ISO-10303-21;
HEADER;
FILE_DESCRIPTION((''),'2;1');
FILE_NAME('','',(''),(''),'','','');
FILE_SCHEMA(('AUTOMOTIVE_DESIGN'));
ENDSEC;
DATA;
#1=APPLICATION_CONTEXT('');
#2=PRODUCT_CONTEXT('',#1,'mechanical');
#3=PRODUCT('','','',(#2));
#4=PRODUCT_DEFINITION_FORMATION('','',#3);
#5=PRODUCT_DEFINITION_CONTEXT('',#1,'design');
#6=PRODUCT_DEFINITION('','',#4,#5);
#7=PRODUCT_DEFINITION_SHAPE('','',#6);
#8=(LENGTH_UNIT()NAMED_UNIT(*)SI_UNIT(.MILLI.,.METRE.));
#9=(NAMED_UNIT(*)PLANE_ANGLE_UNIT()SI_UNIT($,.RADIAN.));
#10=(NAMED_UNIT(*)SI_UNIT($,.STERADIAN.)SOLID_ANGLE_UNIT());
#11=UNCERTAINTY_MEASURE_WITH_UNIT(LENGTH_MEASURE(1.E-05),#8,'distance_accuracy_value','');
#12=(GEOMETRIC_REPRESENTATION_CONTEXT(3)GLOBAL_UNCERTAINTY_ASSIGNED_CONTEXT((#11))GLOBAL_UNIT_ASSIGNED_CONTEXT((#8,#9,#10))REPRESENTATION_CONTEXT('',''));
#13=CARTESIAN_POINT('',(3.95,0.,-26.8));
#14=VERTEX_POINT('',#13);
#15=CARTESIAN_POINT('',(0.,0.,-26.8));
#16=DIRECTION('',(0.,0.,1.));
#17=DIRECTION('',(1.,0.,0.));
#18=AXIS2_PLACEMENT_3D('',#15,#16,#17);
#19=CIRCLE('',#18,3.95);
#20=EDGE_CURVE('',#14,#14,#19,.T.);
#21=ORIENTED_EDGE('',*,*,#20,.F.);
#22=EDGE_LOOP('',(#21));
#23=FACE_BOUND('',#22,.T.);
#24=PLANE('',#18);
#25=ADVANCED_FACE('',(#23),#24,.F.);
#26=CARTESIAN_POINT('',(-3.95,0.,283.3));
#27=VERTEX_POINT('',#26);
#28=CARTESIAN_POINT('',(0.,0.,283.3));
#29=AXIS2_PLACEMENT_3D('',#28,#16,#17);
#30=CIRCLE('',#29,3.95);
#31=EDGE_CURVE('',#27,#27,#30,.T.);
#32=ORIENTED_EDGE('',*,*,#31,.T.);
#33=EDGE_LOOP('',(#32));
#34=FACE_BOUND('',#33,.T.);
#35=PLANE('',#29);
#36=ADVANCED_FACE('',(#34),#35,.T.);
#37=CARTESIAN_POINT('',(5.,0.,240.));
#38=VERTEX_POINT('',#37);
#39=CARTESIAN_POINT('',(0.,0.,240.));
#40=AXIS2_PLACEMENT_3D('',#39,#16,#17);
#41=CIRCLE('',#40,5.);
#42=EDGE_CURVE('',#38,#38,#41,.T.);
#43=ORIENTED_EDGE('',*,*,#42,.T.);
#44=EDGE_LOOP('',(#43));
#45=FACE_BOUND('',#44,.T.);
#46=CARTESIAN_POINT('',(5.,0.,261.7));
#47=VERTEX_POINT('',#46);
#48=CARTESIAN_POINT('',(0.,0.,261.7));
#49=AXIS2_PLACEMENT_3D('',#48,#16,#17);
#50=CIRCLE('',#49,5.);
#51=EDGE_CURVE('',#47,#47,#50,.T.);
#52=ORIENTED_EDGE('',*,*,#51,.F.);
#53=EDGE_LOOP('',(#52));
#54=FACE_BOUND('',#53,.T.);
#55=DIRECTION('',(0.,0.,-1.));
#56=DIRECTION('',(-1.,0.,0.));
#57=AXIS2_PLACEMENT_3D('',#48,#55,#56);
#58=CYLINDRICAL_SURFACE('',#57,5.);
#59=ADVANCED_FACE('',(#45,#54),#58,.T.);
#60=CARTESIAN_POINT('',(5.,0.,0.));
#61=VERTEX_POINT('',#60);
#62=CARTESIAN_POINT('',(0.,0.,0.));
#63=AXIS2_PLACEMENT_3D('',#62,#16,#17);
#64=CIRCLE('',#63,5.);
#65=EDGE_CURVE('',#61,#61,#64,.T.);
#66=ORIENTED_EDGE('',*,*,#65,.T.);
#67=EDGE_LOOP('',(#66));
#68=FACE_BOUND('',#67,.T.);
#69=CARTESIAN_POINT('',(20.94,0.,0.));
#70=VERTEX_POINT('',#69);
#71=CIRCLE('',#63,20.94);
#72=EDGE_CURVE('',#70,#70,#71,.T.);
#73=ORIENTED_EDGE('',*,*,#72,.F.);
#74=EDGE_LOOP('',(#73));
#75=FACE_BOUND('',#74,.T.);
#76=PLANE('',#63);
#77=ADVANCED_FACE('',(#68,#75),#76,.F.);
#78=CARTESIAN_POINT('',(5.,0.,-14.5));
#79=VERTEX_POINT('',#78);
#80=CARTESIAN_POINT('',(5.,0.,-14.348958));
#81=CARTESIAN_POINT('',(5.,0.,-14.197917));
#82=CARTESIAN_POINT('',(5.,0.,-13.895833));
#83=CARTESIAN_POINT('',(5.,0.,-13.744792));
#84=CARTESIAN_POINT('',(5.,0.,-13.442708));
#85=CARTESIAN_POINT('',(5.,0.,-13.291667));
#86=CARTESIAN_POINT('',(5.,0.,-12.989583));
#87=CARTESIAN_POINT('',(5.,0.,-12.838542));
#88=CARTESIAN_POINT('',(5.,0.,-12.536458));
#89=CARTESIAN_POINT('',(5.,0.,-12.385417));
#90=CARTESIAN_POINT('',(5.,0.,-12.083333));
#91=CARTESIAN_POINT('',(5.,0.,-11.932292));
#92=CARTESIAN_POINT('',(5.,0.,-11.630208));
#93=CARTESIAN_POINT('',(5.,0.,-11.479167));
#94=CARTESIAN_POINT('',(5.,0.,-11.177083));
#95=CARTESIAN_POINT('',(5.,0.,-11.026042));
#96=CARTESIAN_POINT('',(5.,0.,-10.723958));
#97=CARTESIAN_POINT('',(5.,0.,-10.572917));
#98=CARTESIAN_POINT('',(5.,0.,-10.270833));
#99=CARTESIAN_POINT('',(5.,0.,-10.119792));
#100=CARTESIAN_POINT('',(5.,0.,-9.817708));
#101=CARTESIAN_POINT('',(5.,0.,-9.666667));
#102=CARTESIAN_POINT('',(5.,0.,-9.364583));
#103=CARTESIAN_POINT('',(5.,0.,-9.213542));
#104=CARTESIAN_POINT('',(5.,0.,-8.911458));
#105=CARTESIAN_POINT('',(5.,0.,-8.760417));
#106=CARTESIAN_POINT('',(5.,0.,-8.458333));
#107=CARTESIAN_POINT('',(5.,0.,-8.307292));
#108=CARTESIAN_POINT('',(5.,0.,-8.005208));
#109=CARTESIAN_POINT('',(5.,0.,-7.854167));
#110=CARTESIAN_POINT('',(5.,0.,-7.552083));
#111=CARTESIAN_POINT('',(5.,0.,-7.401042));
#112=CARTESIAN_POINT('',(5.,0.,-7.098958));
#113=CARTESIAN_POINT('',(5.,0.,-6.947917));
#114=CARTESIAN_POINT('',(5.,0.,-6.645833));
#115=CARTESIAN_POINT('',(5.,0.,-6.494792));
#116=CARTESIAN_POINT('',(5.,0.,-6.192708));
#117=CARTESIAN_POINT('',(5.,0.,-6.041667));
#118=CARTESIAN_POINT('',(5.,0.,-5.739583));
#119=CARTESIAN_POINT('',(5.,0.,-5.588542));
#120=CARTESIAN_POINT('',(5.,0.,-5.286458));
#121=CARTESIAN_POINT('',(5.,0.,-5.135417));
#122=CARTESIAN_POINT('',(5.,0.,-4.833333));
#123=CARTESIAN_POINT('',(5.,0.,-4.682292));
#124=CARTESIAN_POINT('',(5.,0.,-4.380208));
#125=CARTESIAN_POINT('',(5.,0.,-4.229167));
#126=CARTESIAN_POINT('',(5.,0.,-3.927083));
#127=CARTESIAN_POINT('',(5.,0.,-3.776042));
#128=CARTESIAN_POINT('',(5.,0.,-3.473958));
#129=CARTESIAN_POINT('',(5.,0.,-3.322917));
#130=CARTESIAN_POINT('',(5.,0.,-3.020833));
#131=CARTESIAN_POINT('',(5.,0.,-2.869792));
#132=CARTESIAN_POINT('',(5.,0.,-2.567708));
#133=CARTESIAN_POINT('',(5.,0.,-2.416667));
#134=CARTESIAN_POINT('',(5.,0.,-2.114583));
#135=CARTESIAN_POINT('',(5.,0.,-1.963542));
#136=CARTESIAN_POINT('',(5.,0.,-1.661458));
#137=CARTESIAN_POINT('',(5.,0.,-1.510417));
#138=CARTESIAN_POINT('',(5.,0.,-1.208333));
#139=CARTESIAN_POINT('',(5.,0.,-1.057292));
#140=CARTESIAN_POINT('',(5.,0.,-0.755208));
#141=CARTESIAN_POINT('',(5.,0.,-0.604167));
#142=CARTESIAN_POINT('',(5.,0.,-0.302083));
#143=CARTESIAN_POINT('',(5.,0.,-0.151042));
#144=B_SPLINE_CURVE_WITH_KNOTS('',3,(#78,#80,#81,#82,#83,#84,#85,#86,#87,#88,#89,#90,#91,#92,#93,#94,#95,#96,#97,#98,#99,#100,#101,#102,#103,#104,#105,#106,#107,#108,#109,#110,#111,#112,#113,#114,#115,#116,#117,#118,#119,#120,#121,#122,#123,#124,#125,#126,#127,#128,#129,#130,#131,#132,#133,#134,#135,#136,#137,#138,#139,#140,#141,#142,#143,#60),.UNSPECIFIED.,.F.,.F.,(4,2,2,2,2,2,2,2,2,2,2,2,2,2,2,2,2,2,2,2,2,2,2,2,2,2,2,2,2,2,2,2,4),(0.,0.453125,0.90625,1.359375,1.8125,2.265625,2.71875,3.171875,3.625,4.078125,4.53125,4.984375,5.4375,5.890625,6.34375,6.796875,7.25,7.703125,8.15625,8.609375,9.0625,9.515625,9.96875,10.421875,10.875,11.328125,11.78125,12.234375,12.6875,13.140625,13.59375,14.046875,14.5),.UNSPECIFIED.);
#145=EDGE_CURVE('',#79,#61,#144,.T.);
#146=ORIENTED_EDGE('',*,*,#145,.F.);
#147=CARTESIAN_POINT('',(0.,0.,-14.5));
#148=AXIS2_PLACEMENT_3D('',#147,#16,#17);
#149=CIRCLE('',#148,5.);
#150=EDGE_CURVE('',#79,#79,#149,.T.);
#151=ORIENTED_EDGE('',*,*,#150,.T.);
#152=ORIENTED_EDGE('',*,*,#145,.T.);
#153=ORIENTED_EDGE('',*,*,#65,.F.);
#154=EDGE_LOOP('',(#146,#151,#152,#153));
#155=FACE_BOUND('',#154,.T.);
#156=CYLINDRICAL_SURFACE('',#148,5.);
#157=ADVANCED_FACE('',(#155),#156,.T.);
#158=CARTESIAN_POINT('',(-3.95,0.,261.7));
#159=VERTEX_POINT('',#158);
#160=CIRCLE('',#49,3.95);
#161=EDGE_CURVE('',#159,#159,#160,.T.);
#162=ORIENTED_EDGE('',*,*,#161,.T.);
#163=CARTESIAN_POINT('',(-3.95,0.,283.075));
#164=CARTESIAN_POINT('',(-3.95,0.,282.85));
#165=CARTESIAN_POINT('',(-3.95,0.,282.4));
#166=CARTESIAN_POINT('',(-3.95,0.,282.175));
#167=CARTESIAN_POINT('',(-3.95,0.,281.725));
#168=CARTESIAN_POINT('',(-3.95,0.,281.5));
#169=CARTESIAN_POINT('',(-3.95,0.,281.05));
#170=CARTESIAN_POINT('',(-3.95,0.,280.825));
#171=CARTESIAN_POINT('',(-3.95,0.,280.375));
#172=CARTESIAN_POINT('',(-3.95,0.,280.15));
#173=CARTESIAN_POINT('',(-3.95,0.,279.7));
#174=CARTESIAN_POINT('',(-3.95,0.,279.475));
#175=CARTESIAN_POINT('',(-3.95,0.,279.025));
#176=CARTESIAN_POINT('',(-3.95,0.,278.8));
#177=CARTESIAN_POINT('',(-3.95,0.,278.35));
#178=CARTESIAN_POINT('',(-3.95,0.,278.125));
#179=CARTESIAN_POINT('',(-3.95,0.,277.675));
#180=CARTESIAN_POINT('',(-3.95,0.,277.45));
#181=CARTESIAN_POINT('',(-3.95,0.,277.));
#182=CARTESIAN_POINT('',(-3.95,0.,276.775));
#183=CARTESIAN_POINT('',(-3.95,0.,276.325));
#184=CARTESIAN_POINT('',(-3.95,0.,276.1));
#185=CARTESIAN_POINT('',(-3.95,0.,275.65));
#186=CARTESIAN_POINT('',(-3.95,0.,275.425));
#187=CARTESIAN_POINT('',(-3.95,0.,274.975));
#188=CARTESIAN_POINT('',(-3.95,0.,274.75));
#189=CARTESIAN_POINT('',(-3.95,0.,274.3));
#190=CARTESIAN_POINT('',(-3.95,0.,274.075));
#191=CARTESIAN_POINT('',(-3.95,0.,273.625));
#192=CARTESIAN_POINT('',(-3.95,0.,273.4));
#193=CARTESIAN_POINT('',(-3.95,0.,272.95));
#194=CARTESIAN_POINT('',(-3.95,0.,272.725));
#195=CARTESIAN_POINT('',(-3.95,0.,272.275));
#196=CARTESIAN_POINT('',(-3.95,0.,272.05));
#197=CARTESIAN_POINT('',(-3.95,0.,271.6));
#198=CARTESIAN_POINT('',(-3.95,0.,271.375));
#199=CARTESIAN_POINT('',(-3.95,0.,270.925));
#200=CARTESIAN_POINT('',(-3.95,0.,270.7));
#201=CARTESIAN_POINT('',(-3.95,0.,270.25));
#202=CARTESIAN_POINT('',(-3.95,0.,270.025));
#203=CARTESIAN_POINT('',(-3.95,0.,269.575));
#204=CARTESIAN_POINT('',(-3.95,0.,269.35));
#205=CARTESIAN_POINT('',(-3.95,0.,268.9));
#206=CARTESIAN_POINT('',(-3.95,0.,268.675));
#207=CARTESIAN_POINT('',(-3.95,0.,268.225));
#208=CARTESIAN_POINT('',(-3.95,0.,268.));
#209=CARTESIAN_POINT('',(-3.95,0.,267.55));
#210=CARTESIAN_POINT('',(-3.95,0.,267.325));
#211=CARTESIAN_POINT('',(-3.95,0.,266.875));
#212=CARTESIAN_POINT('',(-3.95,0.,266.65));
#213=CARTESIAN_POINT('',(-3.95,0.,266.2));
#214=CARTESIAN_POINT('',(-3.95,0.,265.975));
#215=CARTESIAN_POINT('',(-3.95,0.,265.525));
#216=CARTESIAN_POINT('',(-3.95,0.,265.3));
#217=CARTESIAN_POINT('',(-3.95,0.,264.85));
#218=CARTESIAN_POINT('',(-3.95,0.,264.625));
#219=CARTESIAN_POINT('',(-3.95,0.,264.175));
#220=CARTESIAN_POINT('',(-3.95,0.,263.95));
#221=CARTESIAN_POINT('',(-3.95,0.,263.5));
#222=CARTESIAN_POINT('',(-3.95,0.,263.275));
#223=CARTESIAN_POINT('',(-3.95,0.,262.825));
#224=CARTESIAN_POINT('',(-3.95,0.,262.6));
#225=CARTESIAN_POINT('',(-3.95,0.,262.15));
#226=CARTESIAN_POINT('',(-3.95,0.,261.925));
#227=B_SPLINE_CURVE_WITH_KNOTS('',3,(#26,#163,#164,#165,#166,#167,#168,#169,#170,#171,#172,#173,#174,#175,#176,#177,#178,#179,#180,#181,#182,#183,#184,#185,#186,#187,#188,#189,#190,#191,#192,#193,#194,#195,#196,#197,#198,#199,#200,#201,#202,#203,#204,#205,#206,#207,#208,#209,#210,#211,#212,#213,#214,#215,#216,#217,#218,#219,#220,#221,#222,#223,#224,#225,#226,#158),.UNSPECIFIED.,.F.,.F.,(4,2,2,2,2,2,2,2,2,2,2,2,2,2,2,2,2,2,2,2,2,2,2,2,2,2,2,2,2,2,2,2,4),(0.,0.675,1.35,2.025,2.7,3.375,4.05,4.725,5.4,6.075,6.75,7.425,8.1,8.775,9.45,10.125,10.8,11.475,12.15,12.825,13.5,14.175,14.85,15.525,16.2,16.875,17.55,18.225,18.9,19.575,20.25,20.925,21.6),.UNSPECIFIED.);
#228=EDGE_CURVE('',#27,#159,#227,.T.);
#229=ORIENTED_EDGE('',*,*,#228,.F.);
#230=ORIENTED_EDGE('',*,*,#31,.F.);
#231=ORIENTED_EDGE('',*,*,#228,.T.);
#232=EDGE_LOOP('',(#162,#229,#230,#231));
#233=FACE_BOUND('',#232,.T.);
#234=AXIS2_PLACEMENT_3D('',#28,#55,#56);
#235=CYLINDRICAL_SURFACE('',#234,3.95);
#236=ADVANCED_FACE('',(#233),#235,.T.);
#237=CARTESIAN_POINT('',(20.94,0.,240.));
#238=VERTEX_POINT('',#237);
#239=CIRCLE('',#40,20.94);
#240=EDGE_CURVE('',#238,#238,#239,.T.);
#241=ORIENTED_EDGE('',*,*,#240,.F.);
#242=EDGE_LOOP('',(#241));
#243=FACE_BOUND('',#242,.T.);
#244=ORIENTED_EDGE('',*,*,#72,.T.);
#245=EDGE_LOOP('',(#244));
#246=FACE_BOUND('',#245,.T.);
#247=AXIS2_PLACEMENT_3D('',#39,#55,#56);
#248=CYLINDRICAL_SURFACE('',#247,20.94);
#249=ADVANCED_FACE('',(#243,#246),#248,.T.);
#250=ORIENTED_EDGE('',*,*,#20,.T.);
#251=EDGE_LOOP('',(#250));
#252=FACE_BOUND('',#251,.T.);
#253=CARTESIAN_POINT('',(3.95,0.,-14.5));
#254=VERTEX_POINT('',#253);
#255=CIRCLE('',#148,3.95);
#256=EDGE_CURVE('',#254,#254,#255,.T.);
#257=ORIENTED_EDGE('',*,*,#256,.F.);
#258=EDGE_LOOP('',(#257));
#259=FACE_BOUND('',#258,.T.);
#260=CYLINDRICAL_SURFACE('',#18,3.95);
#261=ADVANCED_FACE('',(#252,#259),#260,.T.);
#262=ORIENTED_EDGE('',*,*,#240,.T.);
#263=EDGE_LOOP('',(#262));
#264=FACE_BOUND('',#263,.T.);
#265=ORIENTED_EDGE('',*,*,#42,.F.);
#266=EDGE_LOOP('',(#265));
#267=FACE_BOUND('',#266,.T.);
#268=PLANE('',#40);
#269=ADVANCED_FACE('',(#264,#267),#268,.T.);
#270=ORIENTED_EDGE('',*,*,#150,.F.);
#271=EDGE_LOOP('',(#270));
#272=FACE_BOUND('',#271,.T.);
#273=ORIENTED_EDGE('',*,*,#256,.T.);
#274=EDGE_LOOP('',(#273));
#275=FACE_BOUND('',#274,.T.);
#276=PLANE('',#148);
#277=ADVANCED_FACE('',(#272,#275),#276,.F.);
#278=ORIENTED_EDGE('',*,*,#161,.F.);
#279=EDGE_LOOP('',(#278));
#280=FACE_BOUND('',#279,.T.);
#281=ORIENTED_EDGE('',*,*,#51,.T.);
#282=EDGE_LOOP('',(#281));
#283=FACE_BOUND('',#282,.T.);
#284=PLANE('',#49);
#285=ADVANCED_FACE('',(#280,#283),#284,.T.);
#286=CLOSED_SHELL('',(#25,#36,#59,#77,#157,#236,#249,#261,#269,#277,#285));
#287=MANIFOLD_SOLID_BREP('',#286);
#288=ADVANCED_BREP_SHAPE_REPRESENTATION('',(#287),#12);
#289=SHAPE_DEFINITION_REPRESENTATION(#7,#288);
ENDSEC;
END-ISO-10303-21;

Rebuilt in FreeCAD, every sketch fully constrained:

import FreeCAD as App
import Part
import Sketcher

V = App.Vector

doc = App.newDocument("Part")
params = doc.addObject("Spreadsheet::Sheet", "Params")
for row, (alias, value) in enumerate([
    ("sketch1_diameter", "41.88 mm"),
    ("pad1_length", "240 mm"),
    ("sketch2_diameter", "10 mm"),
    ("pad2_length", "14.5 mm"),
    ("sketch3_diameter", "7.9 mm"),
    ("pad3_length", "12.3 mm"),
    ("sketch4_diameter", "10 mm"),
    ("pad4_length", "21.7 mm"),
    ("sketch5_diameter", "7.9 mm"),
    ("pad5_length", "21.6 mm"),
], start=1):
    params.set(f"A{row}", alias)
    params.set(f"B{row}", "=" + value)
    params.setAlias(f"B{row}", alias)

body = doc.addObject("PartDesign::Body", "Body")

sketch1 = body.newObject("Sketcher::SketchObject", "Sketch")
sketch1.AttachmentSupport = (doc.getObject("XY_Plane"), [""])
sketch1.MapMode = "FlatFace"
sketch1.addGeometry(Part.Circle(V(0, 0, 0), V(0, 0, 1), 21), False)
sketch1.addConstraint([
    Sketcher.Constraint("Coincident", 0, 3, -1, 1),
    Sketcher.Constraint("Diameter", 0, 41.88),
])
sketch1.setExpression("Constraints[1]", "Params.sketch1_diameter")
pad1 = body.newObject("PartDesign::Pad", "Pad")
pad1.Profile = sketch1
pad1.setExpression("Length", "Params.pad1_length")

sketch2 = body.newObject("Sketcher::SketchObject", "Sketch001")
sketch2.AttachmentSupport = (doc.getObject("XY_Plane"), [""])
sketch2.MapMode = "FlatFace"
sketch2.addGeometry(Part.Circle(V(0, 0, 0), V(0, 0, 1), 5), False)
sketch2.addConstraint([
    Sketcher.Constraint("Coincident", 0, 3, -1, 1),
    Sketcher.Constraint("Diameter", 0, 10.0),
])
sketch2.setExpression("Constraints[1]", "Params.sketch2_diameter")
pad2 = body.newObject("PartDesign::Pad", "Pad001")
pad2.Profile = sketch2
pad2.setExpression("Length", "Params.pad2_length")
pad2.Reversed = True

sketch3 = body.newObject("Sketcher::SketchObject", "Sketch002")
sketch3.AttachmentSupport = (doc.getObject("XY_Plane"), [""])
sketch3.MapMode = "FlatFace"
sketch3.AttachmentOffset = App.Placement(V(0, 0, -14.5), App.Rotation())
sketch3.addGeometry(Part.Circle(V(0, 0, 0), V(0, 0, 1), 4), False)
sketch3.addConstraint([
    Sketcher.Constraint("Coincident", 0, 3, -1, 1),
    Sketcher.Constraint("Diameter", 0, 7.9),
])
sketch3.setExpression("Constraints[1]", "Params.sketch3_diameter")
pad3 = body.newObject("PartDesign::Pad", "Pad002")
pad3.Profile = sketch3
pad3.setExpression("Length", "Params.pad3_length")
pad3.Reversed = True

sketch4 = body.newObject("Sketcher::SketchObject", "Sketch003")
sketch4.AttachmentSupport = (doc.getObject("XY_Plane"), [""])
sketch4.MapMode = "FlatFace"
sketch4.AttachmentOffset = App.Placement(V(0, 0, 261.7), App.Rotation())
sketch4.addGeometry(Part.Circle(V(0, 0, 0), V(0, 0, 1), 5), False)
sketch4.addConstraint([
    Sketcher.Constraint("Coincident", 0, 3, -1, 1),
    Sketcher.Constraint("Diameter", 0, 10.0),
])
sketch4.setExpression("Constraints[1]", "Params.sketch4_diameter")
pad4 = body.newObject("PartDesign::Pad", "Pad003")
pad4.Profile = sketch4
pad4.setExpression("Length", "Params.pad4_length")
pad4.Reversed = True

sketch5 = body.newObject("Sketcher::SketchObject", "Sketch004")
sketch5.AttachmentSupport = (doc.getObject("XY_Plane"), [""])
sketch5.MapMode = "FlatFace"
sketch5.AttachmentOffset = App.Placement(V(0, 0, 283.3), App.Rotation())
sketch5.addGeometry(Part.Circle(V(0, 0, 0), V(0, 0, 1), 4), False)
sketch5.addConstraint([
    Sketcher.Constraint("Coincident", 0, 3, -1, 1),
    Sketcher.Constraint("Diameter", 0, 7.9),
])
sketch5.setExpression("Constraints[1]", "Params.sketch5_diameter")
pad5 = body.newObject("PartDesign::Pad", "Pad004")
pad5.Profile = sketch5
pad5.setExpression("Length", "Params.pad5_length")
pad5.Reversed = True

doc.recompute()
